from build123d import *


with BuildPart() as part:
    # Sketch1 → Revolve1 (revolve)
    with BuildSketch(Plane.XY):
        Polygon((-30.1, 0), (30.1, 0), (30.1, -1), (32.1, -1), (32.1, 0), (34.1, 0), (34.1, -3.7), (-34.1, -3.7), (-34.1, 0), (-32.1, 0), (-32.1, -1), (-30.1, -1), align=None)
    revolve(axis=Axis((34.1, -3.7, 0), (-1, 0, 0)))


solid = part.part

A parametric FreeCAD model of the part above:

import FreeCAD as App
import Part
import Sketcher


def add_polygon(sketch, points):
    """Adds a closed chain of lines whose ends are joined by coincident constraints."""
    first, n = sketch.GeometryCount, len(points)
    for a, b in zip(points, points[1:] + points[:1]):
        sketch.addGeometry(Part.LineSegment(App.Vector(*a, 0), App.Vector(*b, 0)), False)
    for i in range(n):
        sketch.addConstraint(Sketcher.Constraint("Coincident", first + i, 2, first + (i + 1) % n, 1))

doc = App.newDocument("Part")
body = doc.addObject("PartDesign::Body", "Body")

sketch1 = doc.addObject("Sketcher::SketchObject", "Sketch")
body.addObject(sketch1)
sketch1.AttachmentSupport = (doc.XY_Plane, [""])
sketch1.MapMode = "FlatFace"
add_polygon(sketch1, [(30.1, 0), (-30.1, 0), (-30.1, -1), (-32.1, -1), (-32.1, 0), (-34.1, 0), (-34.1, -3.7), (34.1, -3.7), (34.1, 0), (32.1, 0), (32.1, -1), (30.1, -1)])
sketch1.addGeometry(Part.LineSegment(App.Vector(34.1, -3.7, 0), App.Vector(-34.1, -3.7, 0)), True)
sketch1.addConstraint([
    Sketcher.Constraint("Horizontal", 0),
    Sketcher.Constraint("Vertical", 1),
    Sketcher.Constraint("Horizontal", 2),
    Sketcher.Constraint("Vertical", 3),
    Sketcher.Constraint("Horizontal", 4),
    Sketcher.Constraint("Vertical", 5),
    Sketcher.Constraint("Horizontal", 6),
    Sketcher.Constraint("Vertical", 7),
    Sketcher.Constraint("Horizontal", 8),
    Sketcher.Constraint("Vertical", 9),
    Sketcher.Constraint("Horizontal", 10),
    Sketcher.Constraint("Vertical", 11),
    Sketcher.Constraint("Horizontal", 12),
    Sketcher.Constraint("Coincident", 12, 1, 6, 2),
    Sketcher.Constraint("Symmetric", 4, 2, 7, 2, -1, 1),
    Sketcher.Constraint("Symmetric", 0, 2, 11, 2, -1, 1),
    Sketcher.Constraint("Symmetric", 3, 2, 8, 2, -2),
    Sketcher.Constraint("Horizontal", 2, 2, 9, 2),
    Sketcher.Constraint("Vertical", 4, 2, 12, 2),
    Sketcher.Constraint("Equal", 2, 4),
    Sketcher.Constraint("DistanceX", 2, 2, 2, 1, 2.0),
    Sketcher.Constraint("DistanceY", 1, 2, 1, 1, 1.0),
    Sketcher.Constraint("DistanceX", 0, 2, 0, 1, 60.2),
    Sketcher.Constraint("DistanceY", 5, 2, 5, 1, 3.7),
])
revolution = doc.addObject("PartDesign::Revolution", "Revolution")
body.addObject(revolution)
revolution.Profile = sketch1
revolution.ReferenceAxis = (sketch1, ["Axis0"])
revolution.Angle = 360

doc.recompute()
